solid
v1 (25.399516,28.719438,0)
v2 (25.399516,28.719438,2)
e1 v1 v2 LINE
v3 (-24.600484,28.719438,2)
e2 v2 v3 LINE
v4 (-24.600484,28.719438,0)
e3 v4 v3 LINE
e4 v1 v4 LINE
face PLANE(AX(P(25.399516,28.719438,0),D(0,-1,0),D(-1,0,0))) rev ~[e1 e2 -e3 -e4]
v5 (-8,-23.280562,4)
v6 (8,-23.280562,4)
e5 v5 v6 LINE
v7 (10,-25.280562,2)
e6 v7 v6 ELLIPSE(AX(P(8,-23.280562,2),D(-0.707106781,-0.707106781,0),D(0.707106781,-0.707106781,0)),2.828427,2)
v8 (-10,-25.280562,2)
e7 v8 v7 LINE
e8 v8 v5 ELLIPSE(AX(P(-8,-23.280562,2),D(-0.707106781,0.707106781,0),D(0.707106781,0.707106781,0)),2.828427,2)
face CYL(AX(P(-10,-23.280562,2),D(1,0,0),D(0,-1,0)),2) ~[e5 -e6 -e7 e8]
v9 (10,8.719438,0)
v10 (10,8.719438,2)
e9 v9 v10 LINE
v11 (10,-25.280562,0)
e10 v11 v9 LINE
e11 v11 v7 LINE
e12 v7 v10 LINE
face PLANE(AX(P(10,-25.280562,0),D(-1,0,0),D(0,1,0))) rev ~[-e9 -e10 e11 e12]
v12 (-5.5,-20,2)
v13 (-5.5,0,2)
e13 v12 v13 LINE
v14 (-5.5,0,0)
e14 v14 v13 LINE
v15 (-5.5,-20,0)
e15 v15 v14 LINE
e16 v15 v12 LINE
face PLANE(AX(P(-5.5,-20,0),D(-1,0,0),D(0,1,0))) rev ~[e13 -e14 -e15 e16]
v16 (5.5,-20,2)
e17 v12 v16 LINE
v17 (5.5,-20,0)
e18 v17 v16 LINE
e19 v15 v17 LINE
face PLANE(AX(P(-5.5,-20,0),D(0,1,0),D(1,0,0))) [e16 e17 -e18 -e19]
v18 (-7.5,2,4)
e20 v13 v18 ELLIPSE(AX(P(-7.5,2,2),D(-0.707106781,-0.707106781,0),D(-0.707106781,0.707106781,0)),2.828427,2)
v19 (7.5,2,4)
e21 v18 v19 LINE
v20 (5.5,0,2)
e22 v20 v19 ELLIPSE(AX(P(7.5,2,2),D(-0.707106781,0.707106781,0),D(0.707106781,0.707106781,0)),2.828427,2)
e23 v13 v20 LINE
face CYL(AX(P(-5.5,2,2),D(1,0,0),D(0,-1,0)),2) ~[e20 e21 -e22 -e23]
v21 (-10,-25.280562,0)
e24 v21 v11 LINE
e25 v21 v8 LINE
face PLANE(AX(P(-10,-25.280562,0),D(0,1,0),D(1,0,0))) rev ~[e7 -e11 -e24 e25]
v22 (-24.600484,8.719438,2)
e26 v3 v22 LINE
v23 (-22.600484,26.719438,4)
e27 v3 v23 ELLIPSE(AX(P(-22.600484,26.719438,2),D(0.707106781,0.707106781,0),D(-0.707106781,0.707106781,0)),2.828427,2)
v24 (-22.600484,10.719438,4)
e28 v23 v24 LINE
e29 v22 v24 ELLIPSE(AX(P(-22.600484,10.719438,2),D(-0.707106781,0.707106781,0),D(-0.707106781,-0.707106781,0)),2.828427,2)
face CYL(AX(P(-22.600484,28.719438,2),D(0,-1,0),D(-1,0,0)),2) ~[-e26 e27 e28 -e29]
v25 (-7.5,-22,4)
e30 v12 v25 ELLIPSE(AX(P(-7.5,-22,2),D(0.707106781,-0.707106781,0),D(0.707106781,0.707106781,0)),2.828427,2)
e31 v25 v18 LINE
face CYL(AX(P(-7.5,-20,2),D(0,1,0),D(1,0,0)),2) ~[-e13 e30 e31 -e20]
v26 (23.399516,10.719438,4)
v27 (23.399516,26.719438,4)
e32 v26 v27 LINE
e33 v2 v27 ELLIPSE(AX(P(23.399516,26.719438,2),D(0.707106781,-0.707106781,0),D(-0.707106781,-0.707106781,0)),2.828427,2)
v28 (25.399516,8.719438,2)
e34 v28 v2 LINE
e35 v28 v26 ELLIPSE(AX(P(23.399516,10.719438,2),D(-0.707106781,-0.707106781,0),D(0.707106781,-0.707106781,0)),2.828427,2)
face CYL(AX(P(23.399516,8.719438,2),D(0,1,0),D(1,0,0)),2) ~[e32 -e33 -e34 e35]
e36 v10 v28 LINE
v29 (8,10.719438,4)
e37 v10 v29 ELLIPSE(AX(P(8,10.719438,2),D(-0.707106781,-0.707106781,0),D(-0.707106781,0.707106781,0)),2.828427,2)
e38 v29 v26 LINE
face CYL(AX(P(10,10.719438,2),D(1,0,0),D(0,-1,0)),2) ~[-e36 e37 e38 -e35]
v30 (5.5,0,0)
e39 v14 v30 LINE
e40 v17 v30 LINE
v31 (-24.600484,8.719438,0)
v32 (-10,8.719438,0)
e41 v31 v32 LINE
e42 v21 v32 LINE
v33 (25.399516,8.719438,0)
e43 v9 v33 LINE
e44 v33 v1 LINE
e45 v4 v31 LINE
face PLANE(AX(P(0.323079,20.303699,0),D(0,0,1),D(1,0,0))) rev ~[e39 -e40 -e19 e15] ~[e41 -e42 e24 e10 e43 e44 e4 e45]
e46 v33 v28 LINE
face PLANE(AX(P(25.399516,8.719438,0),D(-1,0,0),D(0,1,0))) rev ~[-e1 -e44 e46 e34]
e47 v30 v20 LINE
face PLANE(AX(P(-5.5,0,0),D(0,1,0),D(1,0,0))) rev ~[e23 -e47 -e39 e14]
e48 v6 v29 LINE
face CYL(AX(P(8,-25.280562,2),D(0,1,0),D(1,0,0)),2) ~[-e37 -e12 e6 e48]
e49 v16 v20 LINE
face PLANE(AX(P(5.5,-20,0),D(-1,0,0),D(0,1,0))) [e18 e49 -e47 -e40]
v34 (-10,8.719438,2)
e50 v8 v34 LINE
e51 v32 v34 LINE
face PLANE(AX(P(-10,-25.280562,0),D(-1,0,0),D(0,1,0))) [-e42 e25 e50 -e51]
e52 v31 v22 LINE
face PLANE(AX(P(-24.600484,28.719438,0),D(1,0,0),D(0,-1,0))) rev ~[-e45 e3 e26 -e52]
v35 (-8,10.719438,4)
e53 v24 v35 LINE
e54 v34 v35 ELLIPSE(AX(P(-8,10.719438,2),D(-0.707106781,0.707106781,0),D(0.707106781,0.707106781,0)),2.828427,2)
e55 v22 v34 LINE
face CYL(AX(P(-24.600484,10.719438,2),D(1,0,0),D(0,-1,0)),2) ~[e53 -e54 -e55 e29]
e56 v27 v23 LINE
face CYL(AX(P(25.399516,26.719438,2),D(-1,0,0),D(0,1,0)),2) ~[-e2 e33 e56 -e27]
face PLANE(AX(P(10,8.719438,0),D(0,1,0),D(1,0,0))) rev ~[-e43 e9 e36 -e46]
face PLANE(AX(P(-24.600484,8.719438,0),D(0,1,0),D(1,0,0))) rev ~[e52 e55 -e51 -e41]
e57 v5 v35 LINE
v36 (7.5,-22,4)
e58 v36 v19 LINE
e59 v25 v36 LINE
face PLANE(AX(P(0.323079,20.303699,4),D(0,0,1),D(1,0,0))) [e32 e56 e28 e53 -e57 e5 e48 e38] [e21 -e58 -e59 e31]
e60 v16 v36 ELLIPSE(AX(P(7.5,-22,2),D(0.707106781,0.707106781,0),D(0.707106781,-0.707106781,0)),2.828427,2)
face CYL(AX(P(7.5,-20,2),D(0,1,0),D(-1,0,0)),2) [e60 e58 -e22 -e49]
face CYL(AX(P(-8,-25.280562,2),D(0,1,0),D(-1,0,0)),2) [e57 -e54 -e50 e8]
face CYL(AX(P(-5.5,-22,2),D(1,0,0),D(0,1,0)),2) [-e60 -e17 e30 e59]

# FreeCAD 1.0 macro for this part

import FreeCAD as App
import Part
import Sketcher


def edges_at(feature, points):
    """Names of the edges that pass closest to the given points."""
    edges = feature.Shape.Edges
    near = lambda p: min(range(len(edges)), key=lambda i: edges[i].distToShape(Part.Vertex(*p))[0])
    return sorted({f"Edge{near(p) + 1}" for p in points})

doc = App.newDocument("Part")
params = doc.addObject("Spreadsheet::Sheet", "Params")
for row, (alias, value) in enumerate([
    ("sketch1_width", "20 mm"),
    ("sketch1_width2", "50 mm"),
    ("sketch1_width3", "11 mm"),
    ("sketch1_height", "34 mm"),
    ("pad1_length", "4 mm"),
    ("fillet_radius", "2 mm"),
], start=1):
    params.set(f"A{row}", alias)
    params.set(f"B{row}", "=" + value)
    params.setAlias(f"B{row}", alias)

body = doc.addObject("PartDesign::Body", "Body")

sketch1 = body.newObject("Sketcher::SketchObject", "Sketch")
sketch1.AttachmentSupport = (doc.getObject("XY_Plane"), [""])
sketch1.MapMode = "FlatFace"
sketch1.addGeometry([
    Part.LineSegment(App.Vector(-25, 9, 0), App.Vector(-10, 9, 0)),
    Part.LineSegment(App.Vector(-10, 9, 0), App.Vector(-10, -25, 0)),
    Part.LineSegment(App.Vector(-10, -25, 0), App.Vector(10, -25, 0)),
    Part.LineSegment(App.Vector(10, -25, 0), App.Vector(10, 9, 0)),
    Part.LineSegment(App.Vector(10, 9, 0), App.Vector(25, 9, 0)),
    Part.LineSegment(App.Vector(25, 9, 0), App.Vector(25, 29, 0)),
    Part.LineSegment(App.Vector(25, 29, 0), App.Vector(-25, 29, 0)),
    Part.LineSegment(App.Vector(-25, 29, 0), App.Vector(-25, 9, 0)),
    Part.LineSegment(App.Vector(6, -20, 0), App.Vector(-6, -20, 0)),
    Part.LineSegment(App.Vector(-6, -20, 0), App.Vector(-6, 0, 0)),
    Part.LineSegment(App.Vector(-6, 0, 0), App.Vector(6, 0, 0)),
    Part.LineSegment(App.Vector(6, 0, 0), App.Vector(6, -20, 0)),
], False)
sketch1.addConstraint([
    Sketcher.Constraint("Coincident", 0, 2, 1, 1),
    Sketcher.Constraint("Coincident", 1, 2, 2, 1),
    Sketcher.Constraint("Coincident", 2, 2, 3, 1),
    Sketcher.Constraint("Coincident", 3, 2, 4, 1),
    Sketcher.Constraint("Coincident", 4, 2, 5, 1),
    Sketcher.Constraint("Coincident", 5, 2, 6, 1),
    Sketcher.Constraint("Coincident", 6, 2, 7, 1),
    Sketcher.Constraint("Coincident", 7, 2, 0, 1),
    Sketcher.Constraint("Coincident", 8, 2, 9, 1),
    Sketcher.Constraint("Coincident", 9, 2, 10, 1),
    Sketcher.Constraint("Coincident", 10, 2, 11, 1),
    Sketcher.Constraint("Coincident", 11, 2, 8, 1),
    Sketcher.Constraint("Horizontal", 0),
    Sketcher.Constraint("Vertical", 1),
    Sketcher.Constraint("Horizontal", 2),
    Sketcher.Constraint("Vertical", 3),
    Sketcher.Constraint("Horizontal", 4),
    Sketcher.Constraint("Vertical", 5),
    Sketcher.Constraint("Horizontal", 6),
    Sketcher.Constraint("Vertical", 7),
    Sketcher.Constraint("Horizontal", 8),
    Sketcher.Constraint("Vertical", 9),
    Sketcher.Constraint("Horizontal", 10),
    Sketcher.Constraint("Vertical", 11),
    Sketcher.Constraint("Symmetric", 9, 2, 10, 2, -1, 1),
    Sketcher.Constraint("Symmetric", 0, 2, 3, 2, -2),
    Sketcher.Constraint("Equal", 2, 5),
    Sketcher.Constraint("Equal", 7, 9),
    Sketcher.Constraint("DistanceX", 2, 1, 2, 2, 20.0),
    Sketcher.Constraint("DistanceX", 6, 2, 6, 1, 50.0),
    Sketcher.Constraint("DistanceX", 8, 2, 8, 1, 11.0),
    Sketcher.Constraint("DistanceY", 1, 2, 1, 1, 34.0),
    Sketcher.Constraint("DistanceX", 0, 1, 0, 2, 14.600484),
    Sketcher.Constraint("DistanceY", 1, 2, -1, 1, 25.280562),
])
sketch1.setExpression("Constraints[28]", "Params.sketch1_width")
sketch1.setExpression("Constraints[29]", "Params.sketch1_width2")
sketch1.setExpression("Constraints[30]", "Params.sketch1_width3")
sketch1.setExpression("Constraints[31]", "Params.sketch1_height")
pad1 = body.newObject("PartDesign::Pad", "Pad")
pad1.Profile = sketch1
pad1.setExpression("Length", "Params.pad1_length")
doc.recompute()

fillet = body.newObject("PartDesign::Fillet", "Fillet")
fillet.Base = (pad1, edges_at(pad1, [
    (0.4, 28.719, 4),
    (-24.6, 18.719, 4),
    (-17.3, 8.719, 4),
    (-10, -8.281, 4),
    (0, -25.281, 4),
    (10, -8.281, 4),
    (17.7, 8.719, 4),
    (25.4, 18.719, 4),
    (0, -20, 4),
    (-5.5, -10, 4),
    (0, 0, 4),
    (5.5, -10, 4),
]))
fillet.setExpression("Radius", "Params.fillet_radius")

doc.recompute()
